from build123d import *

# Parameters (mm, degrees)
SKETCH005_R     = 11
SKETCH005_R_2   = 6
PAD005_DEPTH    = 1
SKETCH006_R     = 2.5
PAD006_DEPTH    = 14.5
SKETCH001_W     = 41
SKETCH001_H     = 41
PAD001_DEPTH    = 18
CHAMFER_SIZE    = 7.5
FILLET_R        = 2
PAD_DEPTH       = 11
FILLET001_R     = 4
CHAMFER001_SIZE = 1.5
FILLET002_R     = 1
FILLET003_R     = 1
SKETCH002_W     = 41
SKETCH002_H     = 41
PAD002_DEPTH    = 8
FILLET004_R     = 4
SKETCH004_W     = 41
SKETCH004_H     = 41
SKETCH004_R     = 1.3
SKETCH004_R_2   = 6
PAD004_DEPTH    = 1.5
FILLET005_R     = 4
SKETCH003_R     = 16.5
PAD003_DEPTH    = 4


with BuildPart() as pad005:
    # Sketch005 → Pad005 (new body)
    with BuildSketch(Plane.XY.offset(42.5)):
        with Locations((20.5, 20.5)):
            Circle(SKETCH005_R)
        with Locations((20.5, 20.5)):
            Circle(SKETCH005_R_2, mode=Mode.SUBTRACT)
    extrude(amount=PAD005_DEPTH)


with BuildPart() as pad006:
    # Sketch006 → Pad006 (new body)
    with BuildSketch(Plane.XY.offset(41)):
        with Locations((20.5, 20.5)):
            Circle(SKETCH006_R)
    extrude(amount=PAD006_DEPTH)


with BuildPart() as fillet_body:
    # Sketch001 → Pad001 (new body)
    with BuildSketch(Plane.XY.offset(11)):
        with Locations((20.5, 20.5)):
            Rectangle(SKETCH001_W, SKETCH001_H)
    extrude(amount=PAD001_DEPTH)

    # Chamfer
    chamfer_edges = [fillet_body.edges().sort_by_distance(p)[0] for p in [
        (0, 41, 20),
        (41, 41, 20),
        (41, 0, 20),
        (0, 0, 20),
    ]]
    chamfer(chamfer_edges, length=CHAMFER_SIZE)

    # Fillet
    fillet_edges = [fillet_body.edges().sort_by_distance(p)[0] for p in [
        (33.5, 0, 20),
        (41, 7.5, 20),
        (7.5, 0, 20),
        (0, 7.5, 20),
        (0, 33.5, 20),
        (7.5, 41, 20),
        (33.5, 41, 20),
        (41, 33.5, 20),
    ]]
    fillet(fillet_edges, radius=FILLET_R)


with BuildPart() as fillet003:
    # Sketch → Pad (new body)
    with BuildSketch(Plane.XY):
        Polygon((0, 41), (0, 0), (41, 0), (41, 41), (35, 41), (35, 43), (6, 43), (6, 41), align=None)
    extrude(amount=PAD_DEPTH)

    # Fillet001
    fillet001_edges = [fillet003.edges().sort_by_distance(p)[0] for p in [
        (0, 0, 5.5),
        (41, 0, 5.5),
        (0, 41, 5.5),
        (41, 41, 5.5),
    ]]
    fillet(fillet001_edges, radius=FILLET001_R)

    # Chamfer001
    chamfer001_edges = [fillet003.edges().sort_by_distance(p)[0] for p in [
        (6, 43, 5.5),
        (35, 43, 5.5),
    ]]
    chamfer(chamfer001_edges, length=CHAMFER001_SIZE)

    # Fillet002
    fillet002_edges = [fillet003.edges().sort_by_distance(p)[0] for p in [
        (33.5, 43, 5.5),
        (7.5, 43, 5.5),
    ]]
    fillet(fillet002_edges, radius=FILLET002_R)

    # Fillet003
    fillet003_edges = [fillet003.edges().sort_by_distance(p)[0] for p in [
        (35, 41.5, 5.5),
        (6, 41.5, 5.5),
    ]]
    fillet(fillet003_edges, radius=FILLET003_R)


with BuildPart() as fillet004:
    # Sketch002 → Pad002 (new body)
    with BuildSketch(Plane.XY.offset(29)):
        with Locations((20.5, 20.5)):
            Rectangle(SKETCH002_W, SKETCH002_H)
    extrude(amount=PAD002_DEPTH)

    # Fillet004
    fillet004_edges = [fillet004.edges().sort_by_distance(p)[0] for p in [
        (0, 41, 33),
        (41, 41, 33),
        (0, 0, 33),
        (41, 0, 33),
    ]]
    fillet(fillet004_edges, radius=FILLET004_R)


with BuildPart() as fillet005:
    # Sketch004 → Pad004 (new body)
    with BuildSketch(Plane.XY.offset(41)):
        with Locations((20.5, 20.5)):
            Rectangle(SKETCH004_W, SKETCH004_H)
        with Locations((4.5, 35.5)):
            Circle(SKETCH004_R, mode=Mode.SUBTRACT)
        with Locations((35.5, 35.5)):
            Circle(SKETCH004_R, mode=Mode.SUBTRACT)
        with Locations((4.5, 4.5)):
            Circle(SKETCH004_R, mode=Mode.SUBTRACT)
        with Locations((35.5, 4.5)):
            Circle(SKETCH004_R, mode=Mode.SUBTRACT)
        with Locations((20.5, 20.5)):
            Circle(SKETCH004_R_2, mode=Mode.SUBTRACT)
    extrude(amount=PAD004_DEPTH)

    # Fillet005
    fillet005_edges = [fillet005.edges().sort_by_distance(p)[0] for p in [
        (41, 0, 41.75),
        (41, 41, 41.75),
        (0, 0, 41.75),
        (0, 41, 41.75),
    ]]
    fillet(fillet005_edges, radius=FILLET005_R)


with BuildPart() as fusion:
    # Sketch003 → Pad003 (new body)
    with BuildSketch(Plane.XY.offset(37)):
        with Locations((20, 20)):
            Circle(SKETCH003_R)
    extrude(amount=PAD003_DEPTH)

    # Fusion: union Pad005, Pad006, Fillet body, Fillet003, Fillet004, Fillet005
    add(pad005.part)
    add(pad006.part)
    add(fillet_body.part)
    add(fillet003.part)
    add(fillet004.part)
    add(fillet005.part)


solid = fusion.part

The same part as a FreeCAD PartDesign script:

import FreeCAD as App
import Part
import Sketcher
Q = App.Units.Quantity


def edges_at(feature, points):
    """Names of the edges that pass closest to the given points."""
    edges = feature.Shape.Edges
    near = lambda p: min(range(len(edges)), key=lambda i: edges[i].distToShape(Part.Vertex(*p))[0])
    return sorted({f"Edge{near(p) + 1}" for p in points})


def add_polygon(sketch, points):
    """Adds a closed chain of lines whose ends are joined by coincident constraints."""
    first, n = sketch.GeometryCount, len(points)
    for a, b in zip(points, points[1:] + points[:1]):
        sketch.addGeometry(Part.LineSegment(App.Vector(*a, 0), App.Vector(*b, 0)), False)
    for i in range(n):
        sketch.addConstraint(Sketcher.Constraint("Coincident", first + i, 2, first + (i + 1) % n, 1))

doc = App.newDocument("Part")
body = doc.addObject("PartDesign::Body", "Body")

sketch1 = doc.addObject("Sketcher::SketchObject", "Sketch")
body.addObject(sketch1)
sketch1.AttachmentSupport = (doc.XY_Plane, [""])
sketch1.MapMode = "FlatFace"
sketch1.AttachmentOffset = App.Placement(App.Vector(0, 0, 42.5), App.Rotation())
sketch1.addGeometry(Part.Circle(App.Vector(20, 20, 0), App.Vector(0, 0, 1), 11), False)
sketch1.addGeometry(Part.Circle(App.Vector(20, 20, 0), App.Vector(0, 0, 1), 6), False)
sketch1.addConstraint(Sketcher.Constraint("Coincident", 1, 3, 0, 3))
sketch1.addConstraint(Sketcher.Constraint("Diameter", 0, Q("22 mm")))
sketch1.addConstraint(Sketcher.Constraint("Diameter", 1, Q("12 mm")))
sketch1.addConstraint(Sketcher.Constraint("DistanceX", -1, 1, 0, 3, Q("20.5 mm")))
sketch1.addConstraint(Sketcher.Constraint("DistanceY", -1, 1, 0, 3, Q("20.5 mm")))
pad1 = doc.addObject("PartDesign::Pad", "Pad")
body.addObject(pad1)
pad1.Profile = sketch1
pad1.Length = 1
body2 = doc.addObject("PartDesign::Body", "Body001")

sketch2 = doc.addObject("Sketcher::SketchObject", "Sketch001")
body2.addObject(sketch2)
sketch2.AttachmentSupport = (doc.getObject("XY_Plane001"), [""])
sketch2.MapMode = "FlatFace"
sketch2.AttachmentOffset = App.Placement(App.Vector(0, 0, 41), App.Rotation())
sketch2.addGeometry(Part.Circle(App.Vector(20.5, 20.5, 0), App.Vector(0, 0, 1), 2.5), False)
sketch2.addConstraint(Sketcher.Constraint("Diameter", 0, Q("5 mm")))
sketch2.addConstraint(Sketcher.Constraint("DistanceX", -1, 1, 0, 3, Q("20.5 mm")))
sketch2.addConstraint(Sketcher.Constraint("DistanceY", -1, 1, 0, 3, Q("20.5 mm")))
pad2 = doc.addObject("PartDesign::Pad", "Pad001")
body2.addObject(pad2)
pad2.Profile = sketch2
pad2.Length = 14.5
body3 = doc.addObject("PartDesign::Body", "Body002")

sketch3 = doc.addObject("Sketcher::SketchObject", "Sketch002")
body3.addObject(sketch3)
sketch3.AttachmentSupport = (doc.getObject("XY_Plane002"), [""])
sketch3.MapMode = "FlatFace"
sketch3.AttachmentOffset = App.Placement(App.Vector(0, 0, 11), App.Rotation())
add_polygon(sketch3, [(0, 41), (0, 0), (41, 0), (41, 41)])
sketch3.addConstraint(Sketcher.Constraint("Vertical", 0))
sketch3.addConstraint(Sketcher.Constraint("Horizontal", 1))
sketch3.addConstraint(Sketcher.Constraint("Vertical", 2))
sketch3.addConstraint(Sketcher.Constraint("Horizontal", 3))
sketch3.addConstraint(Sketcher.Constraint("Coincident", 0, 2, -1, 1))
sketch3.addConstraint(Sketcher.Constraint("Equal", 3, 0))
sketch3.addConstraint(Sketcher.Constraint("DistanceX", 1, 1, 1, 2, Q("41 mm")))
pad3 = doc.addObject("PartDesign::Pad", "Pad002")
body3.addObject(pad3)
pad3.Profile = sketch3
pad3.Length = 18
doc.recompute()

chamfer = doc.addObject("PartDesign::Chamfer", "Chamfer")
body3.addObject(chamfer)
chamfer.Base = (pad3, edges_at(pad3, [
    (0, 41, 20),
    (41, 41, 20),
    (41, 0, 20),
    (0, 0, 20),
]))
chamfer.Size = 7.5
doc.recompute()

fillet = doc.addObject("PartDesign::Fillet", "Fillet")
body3.addObject(fillet)
fillet.Base = (chamfer, edges_at(chamfer, [
    (33.5, 0, 20),
    (41, 7.5, 20),
    (7.5, 0, 20),
    (0, 7.5, 20),
    (0, 33.5, 20),
    (7.5, 41, 20),
    (33.5, 41, 20),
    (41, 33.5, 20),
]))
fillet.Radius = 2
body4 = doc.addObject("PartDesign::Body", "Body003")

sketch4 = doc.addObject("Sketcher::SketchObject", "Sketch003")
body4.addObject(sketch4)
sketch4.AttachmentSupport = (doc.getObject("XY_Plane003"), [""])
sketch4.MapMode = "FlatFace"
add_polygon(sketch4, [(0, 41), (0, 0), (41, 0), (41, 41), (35, 41), (35, 43), (6, 43), (6, 41)])
sketch4.addConstraint(Sketcher.Constraint("Vertical", 0))
sketch4.addConstraint(Sketcher.Constraint("Horizontal", 1))
sketch4.addConstraint(Sketcher.Constraint("Vertical", 2))
sketch4.addConstraint(Sketcher.Constraint("Horizontal", 3))
sketch4.addConstraint(Sketcher.Constraint("Vertical", 4))
sketch4.addConstraint(Sketcher.Constraint("Horizontal", 5))
sketch4.addConstraint(Sketcher.Constraint("Vertical", 6))
sketch4.addConstraint(Sketcher.Constraint("Horizontal", 7))
sketch4.addConstraint(Sketcher.Constraint("Coincident", 0, 2, -1, 1))
sketch4.addConstraint(Sketcher.Constraint("Horizontal", 3, 2, 6, 2))
sketch4.addConstraint(Sketcher.Constraint("Equal", 3, 7))
sketch4.addConstraint(Sketcher.Constraint("Equal", 1, 0))
sketch4.addConstraint(Sketcher.Constraint("DistanceX", 1, 1, 1, 2, Q("41 mm")))
sketch4.addConstraint(Sketcher.Constraint("DistanceX", 3, 2, 3, 1, Q("6 mm")))
sketch4.addConstraint(Sketcher.Constraint("DistanceY", 4, 1, 4, 2, Q("2 mm")))
pad4 = doc.addObject("PartDesign::Pad", "Pad003")
body4.addObject(pad4)
pad4.Profile = sketch4
pad4.Length = 11
doc.recompute()

fillet2 = doc.addObject("PartDesign::Fillet", "Fillet001")
body4.addObject(fillet2)
fillet2.Base = (pad4, edges_at(pad4, [
    (0, 0, 5.5),
    (41, 0, 5.5),
    (0, 41, 5.5),
    (41, 41, 5.5),
]))
fillet2.Radius = 4
doc.recompute()

chamfer2 = doc.addObject("PartDesign::Chamfer", "Chamfer001")
body4.addObject(chamfer2)
chamfer2.Base = (fillet2, edges_at(fillet2, [(6, 43, 5.5), (35, 43, 5.5)]))
chamfer2.Size = 1.5
doc.recompute()

fillet3 = doc.addObject("PartDesign::Fillet", "Fillet002")
body4.addObject(fillet3)
fillet3.Base = (chamfer2, edges_at(chamfer2, [(33.5, 43, 5.5), (7.5, 43, 5.5)]))
fillet3.Radius = 1
doc.recompute()

fillet4 = doc.addObject("PartDesign::Fillet", "Fillet003")
body4.addObject(fillet4)
fillet4.Base = (fillet3, edges_at(fillet3, [(35, 41.5, 5.5), (6, 41.5, 5.5)]))
fillet4.Radius = 1
body5 = doc.addObject("PartDesign::Body", "Body004")

sketch5 = doc.addObject("Sketcher::SketchObject", "Sketch004")
body5.addObject(sketch5)
sketch5.AttachmentSupport = (doc.getObject("XY_Plane004"), [""])
sketch5.MapMode = "FlatFace"
sketch5.AttachmentOffset = App.Placement(App.Vector(0, 0, 29), App.Rotation())
add_polygon(sketch5, [(0, 41), (0, 0), (41, 0), (41, 41)])
sketch5.addConstraint(Sketcher.Constraint("Vertical", 0))
sketch5.addConstraint(Sketcher.Constraint("Horizontal", 1))
sketch5.addConstraint(Sketcher.Constraint("Vertical", 2))
sketch5.addConstraint(Sketcher.Constraint("Horizontal", 3))
sketch5.addConstraint(Sketcher.Constraint("Coincident", 0, 2, -1, 1))
sketch5.addConstraint(Sketcher.Constraint("Equal", 3, 0))
sketch5.addConstraint(Sketcher.Constraint("DistanceX", 1, 1, 1, 2, Q("41 mm")))
pad5 = doc.addObject("PartDesign::Pad", "Pad004")
body5.addObject(pad5)
pad5.Profile = sketch5
pad5.Length = 8
doc.recompute()

fillet5 = doc.addObject("PartDesign::Fillet", "Fillet004")
body5.addObject(fillet5)
fillet5.Base = (pad5, edges_at(pad5, [
    (0, 41, 33),
    (41, 41, 33),
    (0, 0, 33),
    (41, 0, 33),
]))
fillet5.Radius = 4
body6 = doc.addObject("PartDesign::Body", "Body005")

sketch6 = doc.addObject("Sketcher::SketchObject", "Sketch005")
body6.addObject(sketch6)
sketch6.AttachmentSupport = (doc.getObject("XY_Plane005"), [""])
sketch6.MapMode = "FlatFace"
sketch6.AttachmentOffset = App.Placement(App.Vector(0, 0, 41), App.Rotation())
add_polygon(sketch6, [(0, 41), (0, 0), (41, 0), (41, 41)])
sketch6.addGeometry(Part.Circle(App.Vector(4.5, 4.5, 0), App.Vector(0, 0, 1), 1.3), False)
sketch6.addGeometry(Part.Circle(App.Vector(35.5, 4.5, 0), App.Vector(0, 0, 1), 1.3), False)
sketch6.addGeometry(Part.Circle(App.Vector(4.5, 35.5, 0), App.Vector(0, 0, 1), 1.3), False)
sketch6.addGeometry(Part.Circle(App.Vector(20.5, 20.5, 0), App.Vector(0, 0, 1), 6), False)
sketch6.addGeometry(Part.Circle(App.Vector(35.5, 35.5, 0), App.Vector(0, 0, 1), 1.3), False)
sketch6.addConstraint(Sketcher.Constraint("Vertical", 0))
sketch6.addConstraint(Sketcher.Constraint("Horizontal", 1))
sketch6.addConstraint(Sketcher.Constraint("Vertical", 2))
sketch6.addConstraint(Sketcher.Constraint("Horizontal", 3))
sketch6.addConstraint(Sketcher.Constraint("Coincident", 0, 2, -1, 1))
sketch6.addConstraint(Sketcher.Constraint("Equal", 4, 5))
sketch6.addConstraint(Sketcher.Constraint("Equal", 5, 6))
sketch6.addConstraint(Sketcher.Constraint("Equal", 6, 8))
sketch6.addConstraint(Sketcher.Constraint("Horizontal", 4, 3, 5, 3))
sketch6.addConstraint(Sketcher.Constraint("Horizontal", 6, 3, 8, 3))
sketch6.addConstraint(Sketcher.Constraint("Vertical", 4, 3, 6, 3))
sketch6.addConstraint(Sketcher.Constraint("Vertical", 5, 3, 8, 3))
sketch6.addConstraint(Sketcher.Constraint("Equal", 3, 0))
sketch6.addConstraint(Sketcher.Constraint("Diameter", 7, Q("12 mm")))
sketch6.addConstraint(Sketcher.Constraint("Diameter", 4, Q("2.6 mm")))
sketch6.addConstraint(Sketcher.Constraint("DistanceX", 1, 1, 1, 2, Q("41 mm")))
sketch6.addConstraint(Sketcher.Constraint("DistanceX", 4, 3, 5, 3, Q("31 mm")))
sketch6.addConstraint(Sketcher.Constraint("DistanceY", 4, 3, 6, 3, Q("31 mm")))
sketch6.addConstraint(Sketcher.Constraint("DistanceX", 7, 3, 5, 3, Q("15 mm")))
sketch6.addConstraint(Sketcher.Constraint("DistanceY", 5, 3, 7, 3, Q("16 mm")))
sketch6.addConstraint(Sketcher.Constraint("DistanceX", -1, 1, 4, 3, Q("4.5 mm")))
sketch6.addConstraint(Sketcher.Constraint("DistanceY", -1, 1, 4, 3, Q("4.5 mm")))
pad6 = doc.addObject("PartDesign::Pad", "Pad005")
body6.addObject(pad6)
pad6.Profile = sketch6
pad6.Length = 1.5
doc.recompute()

fillet6 = doc.addObject("PartDesign::Fillet", "Fillet005")
body6.addObject(fillet6)
fillet6.Base = (pad6, edges_at(pad6, [
    (41, 0, 41.75),
    (41, 41, 41.75),
    (0, 0, 41.75),
    (0, 41, 41.75),
]))
fillet6.Radius = 4
body7 = doc.addObject("PartDesign::Body", "Body006")
body7.AllowCompound = True

sketch7 = doc.addObject("Sketcher::SketchObject", "Sketch006")
body7.addObject(sketch7)
sketch7.AttachmentSupport = (doc.getObject("XY_Plane006"), [""])
sketch7.MapMode = "FlatFace"
sketch7.AttachmentOffset = App.Placement(App.Vector(0, 0, 37), App.Rotation())
sketch7.addGeometry(Part.Circle(App.Vector(20, 20, 0), App.Vector(0, 0, 1), 16), False)
sketch7.addConstraint(Sketcher.Constraint("Diameter", 0, Q("33 mm")))
sketch7.addConstraint(Sketcher.Constraint("DistanceX", -1, 1, 0, 3, Q("20 mm")))
sketch7.addConstraint(Sketcher.Constraint("DistanceY", -1, 1, 0, 3, Q("20 mm")))
pad7 = doc.addObject("PartDesign::Pad", "Pad006")
body7.addObject(pad7)
pad7.Profile = sketch7
pad7.Length = 4
doc.recompute()

boolean = doc.addObject("PartDesign::Boolean", "Boolean")
body7.addObject(boolean)
boolean.Type = "Fuse"
boolean.addObjects([body])
doc.recompute()

boolean2 = doc.addObject("PartDesign::Boolean", "Boolean001")
body7.addObject(boolean2)
boolean2.Type = "Fuse"
boolean2.addObjects([body2])
doc.recompute()

boolean3 = doc.addObject("PartDesign::Boolean", "Boolean002")
body7.addObject(boolean3)
boolean3.Type = "Fuse"
boolean3.addObjects([body3])
doc.recompute()

boolean4 = doc.addObject("PartDesign::Boolean", "Boolean003")
body7.addObject(boolean4)
boolean4.Type = "Fuse"
boolean4.addObjects([body4])
doc.recompute()

boolean5 = doc.addObject("PartDesign::Boolean", "Boolean004")
body7.addObject(boolean5)
boolean5.Type = "Fuse"
boolean5.addObjects([body5])
doc.recompute()

boolean6 = doc.addObject("PartDesign::Boolean", "Boolean005")
body7.addObject(boolean6)
boolean6.Type = "Fuse"
boolean6.addObjects([body6])

doc.recompute()
